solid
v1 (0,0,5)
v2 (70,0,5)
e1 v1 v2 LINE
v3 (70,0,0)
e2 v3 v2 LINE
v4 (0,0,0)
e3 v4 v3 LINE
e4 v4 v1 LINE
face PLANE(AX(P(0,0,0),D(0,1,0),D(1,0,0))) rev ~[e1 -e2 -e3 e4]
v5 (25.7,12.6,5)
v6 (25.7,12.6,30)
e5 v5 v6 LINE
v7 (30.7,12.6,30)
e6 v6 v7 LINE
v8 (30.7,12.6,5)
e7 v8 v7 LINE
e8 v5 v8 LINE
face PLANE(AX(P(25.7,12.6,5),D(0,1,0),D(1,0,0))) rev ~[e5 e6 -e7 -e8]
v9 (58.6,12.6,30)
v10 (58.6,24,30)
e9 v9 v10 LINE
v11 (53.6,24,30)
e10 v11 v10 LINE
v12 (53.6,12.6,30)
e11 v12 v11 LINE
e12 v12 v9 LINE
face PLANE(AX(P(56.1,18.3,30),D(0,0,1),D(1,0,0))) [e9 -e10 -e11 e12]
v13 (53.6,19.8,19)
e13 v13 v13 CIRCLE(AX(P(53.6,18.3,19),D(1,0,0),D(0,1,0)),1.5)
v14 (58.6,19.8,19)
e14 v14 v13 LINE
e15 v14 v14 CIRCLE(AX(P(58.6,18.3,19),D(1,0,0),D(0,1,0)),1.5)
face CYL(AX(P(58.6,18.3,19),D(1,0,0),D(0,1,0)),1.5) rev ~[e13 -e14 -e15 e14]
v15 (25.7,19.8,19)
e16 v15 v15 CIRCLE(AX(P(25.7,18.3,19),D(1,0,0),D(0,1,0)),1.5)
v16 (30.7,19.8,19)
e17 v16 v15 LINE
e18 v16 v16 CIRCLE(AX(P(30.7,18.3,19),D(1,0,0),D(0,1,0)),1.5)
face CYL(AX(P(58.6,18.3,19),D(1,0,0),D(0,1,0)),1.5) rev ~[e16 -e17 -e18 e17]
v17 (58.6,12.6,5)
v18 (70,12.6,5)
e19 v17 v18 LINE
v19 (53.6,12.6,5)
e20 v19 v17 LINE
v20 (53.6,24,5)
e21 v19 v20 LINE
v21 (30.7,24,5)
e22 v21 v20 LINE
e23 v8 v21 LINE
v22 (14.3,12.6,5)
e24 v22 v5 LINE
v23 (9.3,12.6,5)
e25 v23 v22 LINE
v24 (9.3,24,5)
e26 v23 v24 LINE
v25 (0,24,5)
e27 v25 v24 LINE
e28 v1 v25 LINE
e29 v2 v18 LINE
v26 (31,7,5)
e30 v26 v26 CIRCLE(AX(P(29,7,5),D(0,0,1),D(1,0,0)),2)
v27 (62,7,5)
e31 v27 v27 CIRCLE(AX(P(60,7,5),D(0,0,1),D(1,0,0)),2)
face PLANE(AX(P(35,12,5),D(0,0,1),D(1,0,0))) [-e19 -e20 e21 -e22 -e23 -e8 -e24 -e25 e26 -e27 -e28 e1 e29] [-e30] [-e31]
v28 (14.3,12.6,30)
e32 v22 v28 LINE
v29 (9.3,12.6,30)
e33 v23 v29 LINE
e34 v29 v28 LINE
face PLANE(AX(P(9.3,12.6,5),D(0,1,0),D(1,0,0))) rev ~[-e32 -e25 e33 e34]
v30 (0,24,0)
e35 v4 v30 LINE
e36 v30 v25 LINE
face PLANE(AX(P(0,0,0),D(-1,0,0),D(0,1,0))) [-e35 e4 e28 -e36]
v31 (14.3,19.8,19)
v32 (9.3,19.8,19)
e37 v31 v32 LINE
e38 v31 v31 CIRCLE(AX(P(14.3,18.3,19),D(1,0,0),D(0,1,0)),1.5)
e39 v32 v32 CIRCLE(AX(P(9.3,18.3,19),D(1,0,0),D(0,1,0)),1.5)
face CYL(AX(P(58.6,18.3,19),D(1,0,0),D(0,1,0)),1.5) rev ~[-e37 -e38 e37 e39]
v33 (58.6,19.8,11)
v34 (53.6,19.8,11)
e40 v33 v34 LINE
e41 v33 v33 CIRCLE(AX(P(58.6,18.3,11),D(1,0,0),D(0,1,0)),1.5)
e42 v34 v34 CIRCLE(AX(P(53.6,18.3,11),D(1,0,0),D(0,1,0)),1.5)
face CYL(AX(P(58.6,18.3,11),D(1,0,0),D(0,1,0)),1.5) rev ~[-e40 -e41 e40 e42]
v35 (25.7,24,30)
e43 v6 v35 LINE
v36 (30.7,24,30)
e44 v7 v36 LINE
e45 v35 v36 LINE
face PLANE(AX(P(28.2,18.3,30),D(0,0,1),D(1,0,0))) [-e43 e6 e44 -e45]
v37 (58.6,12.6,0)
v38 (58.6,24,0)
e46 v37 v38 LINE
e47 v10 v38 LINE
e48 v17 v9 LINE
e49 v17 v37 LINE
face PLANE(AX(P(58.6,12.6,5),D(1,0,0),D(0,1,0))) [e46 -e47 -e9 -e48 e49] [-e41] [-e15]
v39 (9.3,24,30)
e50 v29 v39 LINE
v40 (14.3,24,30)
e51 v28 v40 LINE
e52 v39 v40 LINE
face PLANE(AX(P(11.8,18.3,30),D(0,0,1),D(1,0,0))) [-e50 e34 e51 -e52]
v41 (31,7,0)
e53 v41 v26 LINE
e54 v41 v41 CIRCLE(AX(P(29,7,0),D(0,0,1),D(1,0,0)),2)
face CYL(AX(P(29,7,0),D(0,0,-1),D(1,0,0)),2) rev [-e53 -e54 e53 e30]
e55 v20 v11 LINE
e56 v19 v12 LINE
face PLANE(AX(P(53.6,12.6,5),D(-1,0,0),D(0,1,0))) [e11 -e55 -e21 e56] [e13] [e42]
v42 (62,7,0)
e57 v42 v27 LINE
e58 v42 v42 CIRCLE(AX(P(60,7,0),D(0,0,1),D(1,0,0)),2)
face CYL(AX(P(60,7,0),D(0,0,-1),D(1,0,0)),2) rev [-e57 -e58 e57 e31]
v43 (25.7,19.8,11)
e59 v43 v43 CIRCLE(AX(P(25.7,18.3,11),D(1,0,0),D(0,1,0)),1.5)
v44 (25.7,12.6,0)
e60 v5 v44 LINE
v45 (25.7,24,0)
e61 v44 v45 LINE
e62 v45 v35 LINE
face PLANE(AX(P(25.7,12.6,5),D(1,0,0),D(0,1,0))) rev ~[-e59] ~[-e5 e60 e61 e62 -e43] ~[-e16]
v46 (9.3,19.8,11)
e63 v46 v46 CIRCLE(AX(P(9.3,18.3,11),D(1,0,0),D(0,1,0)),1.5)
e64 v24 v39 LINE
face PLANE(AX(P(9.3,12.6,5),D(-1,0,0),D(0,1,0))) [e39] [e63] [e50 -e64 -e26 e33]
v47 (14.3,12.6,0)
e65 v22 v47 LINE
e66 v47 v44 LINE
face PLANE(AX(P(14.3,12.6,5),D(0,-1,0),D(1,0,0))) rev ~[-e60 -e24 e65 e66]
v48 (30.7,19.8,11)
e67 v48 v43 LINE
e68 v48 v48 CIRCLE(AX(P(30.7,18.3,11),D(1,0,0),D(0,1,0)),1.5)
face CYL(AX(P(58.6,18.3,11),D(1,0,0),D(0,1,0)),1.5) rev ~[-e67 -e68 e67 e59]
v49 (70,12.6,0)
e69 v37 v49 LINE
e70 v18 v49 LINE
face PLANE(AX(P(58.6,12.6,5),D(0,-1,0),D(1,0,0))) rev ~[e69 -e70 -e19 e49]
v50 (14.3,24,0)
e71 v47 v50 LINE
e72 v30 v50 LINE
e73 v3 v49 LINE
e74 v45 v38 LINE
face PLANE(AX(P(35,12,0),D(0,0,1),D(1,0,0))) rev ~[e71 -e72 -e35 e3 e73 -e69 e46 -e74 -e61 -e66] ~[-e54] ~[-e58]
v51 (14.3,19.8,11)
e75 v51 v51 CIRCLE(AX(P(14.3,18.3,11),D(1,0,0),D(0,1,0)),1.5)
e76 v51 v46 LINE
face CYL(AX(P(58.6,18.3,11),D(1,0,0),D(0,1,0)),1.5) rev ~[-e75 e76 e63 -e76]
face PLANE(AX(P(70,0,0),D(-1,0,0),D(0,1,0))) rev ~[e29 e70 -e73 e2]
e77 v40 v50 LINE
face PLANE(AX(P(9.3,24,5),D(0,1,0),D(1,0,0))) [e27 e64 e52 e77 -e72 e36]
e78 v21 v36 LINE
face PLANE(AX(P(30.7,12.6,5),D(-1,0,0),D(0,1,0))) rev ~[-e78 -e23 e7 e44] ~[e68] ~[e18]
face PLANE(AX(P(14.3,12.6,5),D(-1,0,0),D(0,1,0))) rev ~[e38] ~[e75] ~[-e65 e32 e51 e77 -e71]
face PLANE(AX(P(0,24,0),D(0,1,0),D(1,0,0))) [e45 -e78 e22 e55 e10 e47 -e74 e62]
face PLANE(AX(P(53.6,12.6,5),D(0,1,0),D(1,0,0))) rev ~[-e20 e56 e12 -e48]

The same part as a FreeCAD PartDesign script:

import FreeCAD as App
import Part
import Sketcher
from FreeCAD import Vector

doc = App.newDocument("Part")
body = doc.addObject("PartDesign::Body", "Body")

# Sketch on XY plane
sketch1 = doc.addObject("Sketcher::SketchObject", "Sketch")
body.addObject(sketch1)
sketch1.AttachmentSupport = (doc.XY_Plane, [""])
sketch1.MapMode = "FlatFace"
sketch1.addGeometry([
    Part.LineSegment(Vector(0, 24, 0), Vector(0, 0, 0)),  # 0
    Part.LineSegment(Vector(0, 0, 0), Vector(70, 0, 0)),  # 1
    Part.LineSegment(Vector(70, 0, 0), Vector(70, 24, 0)),  # 2
    Part.LineSegment(Vector(70, 24, 0), Vector(0, 24, 0)),  # 3
    Part.Circle(Vector(29, 7, 0), Vector(0, 0, 1), 2),  # 4
    Part.Circle(Vector(60, 7, 0), Vector(0, 0, 1), 2),  # 5
], False)
sketch1.addConstraint([
    Sketcher.Constraint("Coincident", 0, 2, 1, 1),
    Sketcher.Constraint("Coincident", 1, 2, 2, 1),
    Sketcher.Constraint("Coincident", 2, 2, 3, 1),
    Sketcher.Constraint("Coincident", 3, 2, 0, 1),
    Sketcher.Constraint("Vertical", 0),
    Sketcher.Constraint("Horizontal", 1),
    Sketcher.Constraint("Vertical", 2),
    Sketcher.Constraint("Horizontal", 3),
    Sketcher.Constraint("Coincident", 0, 2, -1, 1),
    Sketcher.Constraint("Equal", 4, 5),
    Sketcher.Constraint("Horizontal", 4, 3, 5, 3),
    Sketcher.Constraint("Diameter", 4, 4.0),
    Sketcher.Constraint("DistanceX", 1, 1, 1, 2, 70.0),
    Sketcher.Constraint("DistanceY", 0, 2, 0, 1, 24.0),
    Sketcher.Constraint("DistanceX", -1, 1, 4, 3, 29.0),
    Sketcher.Constraint("DistanceY", -1, 1, 4, 3, 7.0),
    Sketcher.Constraint("DistanceX", -1, 1, 5, 3, 60.0),
])
pad1 = doc.addObject("PartDesign::Pad", "Pad")
body.addObject(pad1)
pad1.Profile = sketch1
pad1.Length = 5

# Sketch on XY plane
sketch2 = doc.addObject("Sketcher::SketchObject", "Sketch001")
body.addObject(sketch2)
sketch2.AttachmentSupport = (doc.XY_Plane, [""])
sketch2.MapMode = "FlatFace"
sketch2.AttachmentOffset = App.Placement(Vector(0, 0, 5), App.Rotation())
sketch2.addGeometry([
    Part.LineSegment(Vector(59, 24, 0), Vector(59, 13, 0)),  # 0
    Part.LineSegment(Vector(59, 13, 0), Vector(70, 13, 0)),  # 1
    Part.LineSegment(Vector(70, 13, 0), Vector(70, 24, 0)),  # 2
    Part.LineSegment(Vector(70, 24, 0), Vector(59, 24, 0)),  # 3
    Part.LineSegment(Vector(14, 24, 0), Vector(14, 13, 0)),  # 4
    Part.LineSegment(Vector(14, 13, 0), Vector(26, 13, 0)),  # 5
    Part.LineSegment(Vector(26, 13, 0), Vector(26, 24, 0)),  # 6
    Part.LineSegment(Vector(26, 24, 0), Vector(14, 24, 0)),  # 7
], False)
sketch2.addConstraint([
    Sketcher.Constraint("Coincident", 0, 2, 1, 1),
    Sketcher.Constraint("Coincident", 1, 2, 2, 1),
    Sketcher.Constraint("Coincident", 2, 2, 3, 1),
    Sketcher.Constraint("Coincident", 3, 2, 0, 1),
    Sketcher.Constraint("Coincident", 4, 2, 5, 1),
    Sketcher.Constraint("Coincident", 5, 2, 6, 1),
    Sketcher.Constraint("Coincident", 6, 2, 7, 1),
    Sketcher.Constraint("Coincident", 7, 2, 4, 1),
    Sketcher.Constraint("Vertical", 0),
    Sketcher.Constraint("Horizontal", 1),
    Sketcher.Constraint("Vertical", 2),
    Sketcher.Constraint("Horizontal", 3),
    Sketcher.Constraint("Vertical", 4),
    Sketcher.Constraint("Horizontal", 5),
    Sketcher.Constraint("Vertical", 6),
    Sketcher.Constraint("Horizontal", 7),
    Sketcher.Constraint("Horizontal", 1, 2, 4, 2),
    Sketcher.Constraint("Horizontal", 3, 2, 6, 2),
    Sketcher.Constraint("Equal", 3, 5),
    Sketcher.Constraint("Equal", 7, 0),
    Sketcher.Constraint("DistanceX", 1, 1, 1, 2, 11.4),
    Sketcher.Constraint("DistanceX", -1, 1, 1, 2, 70.0),
    Sketcher.Constraint("DistanceY", -1, 1, 2, 2, 24.0),
    Sketcher.Constraint("DistanceX", -1, 1, 4, 2, 14.3),
])
pocket1 = doc.addObject("PartDesign::Pocket", "Pocket")
body.addObject(pocket1)
pocket1.Profile = sketch2
pocket1.Type = "ThroughAll"

# Sketch on XY plane
sketch3 = doc.addObject("Sketcher::SketchObject", "Sketch002")
body.addObject(sketch3)
sketch3.AttachmentSupport = (doc.XY_Plane, [""])
sketch3.MapMode = "FlatFace"
sketch3.AttachmentOffset = App.Placement(Vector(0, 0, 5), App.Rotation())
sketch3.addGeometry([
    Part.LineSegment(Vector(9, 24, 0), Vector(9, 13, 0)),  # 0
    Part.LineSegment(Vector(9, 13, 0), Vector(14, 13, 0)),  # 1
    Part.LineSegment(Vector(14, 13, 0), Vector(14, 24, 0)),  # 2
    Part.LineSegment(Vector(14, 24, 0), Vector(9, 24, 0)),  # 3
    Part.LineSegment(Vector(26, 24, 0), Vector(26, 13, 0)),  # 4
    Part.LineSegment(Vector(26, 13, 0), Vector(31, 13, 0)),  # 5
    Part.LineSegment(Vector(31, 13, 0), Vector(31, 24, 0)),  # 6
    Part.LineSegment(Vector(31, 24, 0), Vector(26, 24, 0)),  # 7
    Part.LineSegment(Vector(54, 24, 0), Vector(54, 13, 0)),  # 8
    Part.LineSegment(Vector(54, 13, 0), Vector(59, 13, 0)),  # 9
    Part.LineSegment(Vector(59, 13, 0), Vector(59, 24, 0)),  # 10
    Part.LineSegment(Vector(59, 24, 0), Vector(54, 24, 0)),  # 11
], False)
sketch3.addConstraint([
    Sketcher.Constraint("Coincident", 0, 2, 1, 1),
    Sketcher.Constraint("Coincident", 1, 2, 2, 1),
    Sketcher.Constraint("Coincident", 2, 2, 3, 1),
    Sketcher.Constraint("Coincident", 3, 2, 0, 1),
    Sketcher.Constraint("Coincident", 4, 2, 5, 1),
    Sketcher.Constraint("Coincident", 5, 2, 6, 1),
    Sketcher.Constraint("Coincident", 6, 2, 7, 1),
    Sketcher.Constraint("Coincident", 7, 2, 4, 1),
    Sketcher.Constraint("Coincident", 8, 2, 9, 1),
    Sketcher.Constraint("Coincident", 9, 2, 10, 1),
    Sketcher.Constraint("Coincident", 10, 2, 11, 1),
    Sketcher.Constraint("Coincident", 11, 2, 8, 1),
    Sketcher.Constraint("Vertical", 0),
    Sketcher.Constraint("Horizontal", 1),
    Sketcher.Constraint("Vertical", 2),
    Sketcher.Constraint("Horizontal", 3),
    Sketcher.Constraint("Vertical", 4),
    Sketcher.Constraint("Horizontal", 5),
    Sketcher.Constraint("Vertical", 6),
    Sketcher.Constraint("Horizontal", 7),
    Sketcher.Constraint("Vertical", 8),
    Sketcher.Constraint("Horizontal", 9),
    Sketcher.Constraint("Vertical", 10),
    Sketcher.Constraint("Horizontal", 11),
    Sketcher.Constraint("Horizontal", 1, 2, 4, 2),
    Sketcher.Constraint("Horizontal", 3, 2, 6, 2),
    Sketcher.Constraint("Horizontal", 5, 2, 8, 2),
    Sketcher.Constraint("Horizontal", 7, 2, 10, 2),
    Sketcher.Constraint("Equal", 3, 5),
    Sketcher.Constraint("Equal", 7, 9),
    Sketcher.Constraint("DistanceX", 1, 1, 1, 2, 5.0),
    Sketcher.Constraint("DistanceY", 0, 2, 0, 1, 11.4),
    Sketcher.Constraint("DistanceY", -1, 1, 2, 2, 24.0),
    Sketcher.Constraint("DistanceX", -1, 1, 0, 2, 9.3),
    Sketcher.Constraint("DistanceX", -1, 1, 4, 2, 25.7),
    Sketcher.Constraint("DistanceX", -1, 1, 8, 2, 53.6),
])
pad2 = doc.addObject("PartDesign::Pad", "Pad001")
body.addObject(pad2)
pad2.Profile = sketch3
pad2.Length = 25

# Sketch on YZ plane
sketch4 = doc.addObject("Sketcher::SketchObject", "Sketch003")
body.addObject(sketch4)
sketch4.AttachmentSupport = (doc.YZ_Plane, [""])
sketch4.MapMode = "FlatFace"
sketch4.AttachmentOffset = App.Placement(Vector(0, 0, 58.6), App.Rotation())
sketch4.addGeometry([
    Part.Circle(Vector(18.3, 19, 0), Vector(0, 0, 1), 1.5),
    Part.Circle(Vector(18.3, 11, 0), Vector(0, 0, 1), 1.5),
], False)
sketch4.addConstraint([
    Sketcher.Constraint("Equal", 0, 1),
    Sketcher.Constraint("Vertical", 0, 3, 1, 3),
    Sketcher.Constraint("Diameter", 0, 3.0),
    Sketcher.Constraint("DistanceY", -1, 1, 0, 3, 19.0),
    Sketcher.Constraint("DistanceY", -1, 1, 1, 3, 11.0),
    Sketcher.Constraint("DistanceX", -1, 1, 0, 3, 18.3),
])
pocket2 = doc.addObject("PartDesign::Pocket", "Pocket001")
body.addObject(pocket2)
pocket2.Profile = sketch4
pocket2.Type = "ThroughAll"

doc.recompute()
